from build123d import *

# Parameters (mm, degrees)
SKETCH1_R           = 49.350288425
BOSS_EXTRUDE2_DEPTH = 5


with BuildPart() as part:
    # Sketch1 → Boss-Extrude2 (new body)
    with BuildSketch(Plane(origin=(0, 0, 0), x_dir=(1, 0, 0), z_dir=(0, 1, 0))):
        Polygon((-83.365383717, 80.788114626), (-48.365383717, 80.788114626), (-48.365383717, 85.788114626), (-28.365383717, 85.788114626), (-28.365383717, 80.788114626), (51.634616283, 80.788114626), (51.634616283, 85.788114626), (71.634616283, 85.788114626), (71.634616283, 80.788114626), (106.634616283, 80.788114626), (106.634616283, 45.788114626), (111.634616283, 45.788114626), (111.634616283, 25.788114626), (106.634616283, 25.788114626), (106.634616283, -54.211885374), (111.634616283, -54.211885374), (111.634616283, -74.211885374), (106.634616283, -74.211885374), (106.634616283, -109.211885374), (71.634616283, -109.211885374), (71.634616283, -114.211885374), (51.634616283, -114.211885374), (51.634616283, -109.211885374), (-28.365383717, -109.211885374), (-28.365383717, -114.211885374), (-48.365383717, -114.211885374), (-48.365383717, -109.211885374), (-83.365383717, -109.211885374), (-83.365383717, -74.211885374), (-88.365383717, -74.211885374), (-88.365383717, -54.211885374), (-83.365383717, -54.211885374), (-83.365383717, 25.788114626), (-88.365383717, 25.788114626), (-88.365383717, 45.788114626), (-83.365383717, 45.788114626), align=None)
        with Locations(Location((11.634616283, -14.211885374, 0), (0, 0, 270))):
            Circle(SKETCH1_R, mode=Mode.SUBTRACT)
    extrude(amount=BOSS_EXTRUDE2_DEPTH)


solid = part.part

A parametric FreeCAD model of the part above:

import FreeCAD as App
import Part
import Sketcher

V = App.Vector
Q = App.Units.Quantity

doc = App.newDocument("Part")
body = doc.addObject("PartDesign::Body", "Body")

# Sketch on XZ plane
sketch1 = doc.addObject("Sketcher::SketchObject", "Sketch")
body.addObject(sketch1)
sketch1.AttachmentSupport = (doc.XZ_Plane, [""])
sketch1.MapMode = "FlatFace"
sketch1.addGeometry(Part.LineSegment(V(-48, -81, 0), V(-83, -81, 0)), False)
sketch1.addGeometry(Part.LineSegment(V(-83, -81, 0), V(-83, -46, 0)), False)
sketch1.addGeometry(Part.LineSegment(V(-83, -46, 0), V(-88, -46, 0)), False)
sketch1.addGeometry(Part.LineSegment(V(-88, -46, 0), V(-88, -26, 0)), False)
sketch1.addGeometry(Part.LineSegment(V(-88, -26, 0), V(-83, -26, 0)), False)
sketch1.addGeometry(Part.LineSegment(V(-83, -26, 0), V(-83, 54, 0)), False)
sketch1.addGeometry(Part.LineSegment(V(-83, 54, 0), V(-88, 54, 0)), False)
sketch1.addGeometry(Part.LineSegment(V(-88, 54, 0), V(-88, 74, 0)), False)
sketch1.addGeometry(Part.LineSegment(V(-88, 74, 0), V(-83, 74, 0)), False)
sketch1.addGeometry(Part.LineSegment(V(-83, 74, 0), V(-83, 109, 0)), False)
sketch1.addGeometry(Part.LineSegment(V(-83, 109, 0), V(-48, 109, 0)), False)
sketch1.addGeometry(Part.LineSegment(V(-48, 109, 0), V(-48, 114, 0)), False)
sketch1.addGeometry(Part.LineSegment(V(-48, 114, 0), V(-28, 114, 0)), False)
sketch1.addGeometry(Part.LineSegment(V(-28, 114, 0), V(-28, 109, 0)), False)
sketch1.addGeometry(Part.LineSegment(V(-28, 109, 0), V(52, 109, 0)), False)
sketch1.addGeometry(Part.LineSegment(V(52, 109, 0), V(52, 114, 0)), False)
sketch1.addGeometry(Part.LineSegment(V(52, 114, 0), V(72, 114, 0)), False)
sketch1.addGeometry(Part.LineSegment(V(72, 114, 0), V(72, 109, 0)), False)
sketch1.addGeometry(Part.LineSegment(V(72, 109, 0), V(107, 109, 0)), False)
sketch1.addGeometry(Part.LineSegment(V(107, 109, 0), V(107, 74, 0)), False)
sketch1.addGeometry(Part.LineSegment(V(107, 74, 0), V(112, 74, 0)), False)
sketch1.addGeometry(Part.LineSegment(V(112, 74, 0), V(112, 54, 0)), False)
sketch1.addGeometry(Part.LineSegment(V(112, 54, 0), V(107, 54, 0)), False)
sketch1.addGeometry(Part.LineSegment(V(107, 54, 0), V(107, -26, 0)), False)
sketch1.addGeometry(Part.LineSegment(V(107, -26, 0), V(112, -26, 0)), False)
sketch1.addGeometry(Part.LineSegment(V(112, -26, 0), V(112, -46, 0)), False)
sketch1.addGeometry(Part.LineSegment(V(112, -46, 0), V(107, -46, 0)), False)
sketch1.addGeometry(Part.LineSegment(V(107, -46, 0), V(107, -81, 0)), False)
sketch1.addGeometry(Part.LineSegment(V(107, -81, 0), V(72, -81, 0)), False)
sketch1.addGeometry(Part.LineSegment(V(72, -81, 0), V(72, -86, 0)), False)
sketch1.addGeometry(Part.LineSegment(V(72, -86, 0), V(52, -86, 0)), False)
sketch1.addGeometry(Part.LineSegment(V(52, -86, 0), V(52, -81, 0)), False)
sketch1.addGeometry(Part.LineSegment(V(52, -81, 0), V(-28, -81, 0)), False)
sketch1.addGeometry(Part.LineSegment(V(-28, -81, 0), V(-28, -86, 0)), False)
sketch1.addGeometry(Part.LineSegment(V(-28, -86, 0), V(-48, -86, 0)), False)
sketch1.addGeometry(Part.LineSegment(V(-48, -86, 0), V(-48, -81, 0)), False)
sketch1.addGeometry(Part.Circle(V(12, 14, 0), V(0, 0, 1), 49), False)
sketch1.addConstraint(Sketcher.Constraint("Coincident", 0, 2, 1, 1))
sketch1.addConstraint(Sketcher.Constraint("Coincident", 1, 2, 2, 1))
sketch1.addConstraint(Sketcher.Constraint("Coincident", 2, 2, 3, 1))
sketch1.addConstraint(Sketcher.Constraint("Coincident", 3, 2, 4, 1))
sketch1.addConstraint(Sketcher.Constraint("Coincident", 4, 2, 5, 1))
sketch1.addConstraint(Sketcher.Constraint("Coincident", 5, 2, 6, 1))
sketch1.addConstraint(Sketcher.Constraint("Coincident", 6, 2, 7, 1))
sketch1.addConstraint(Sketcher.Constraint("Coincident", 7, 2, 8, 1))
sketch1.addConstraint(Sketcher.Constraint("Coincident", 8, 2, 9, 1))
sketch1.addConstraint(Sketcher.Constraint("Coincident", 9, 2, 10, 1))
sketch1.addConstraint(Sketcher.Constraint("Coincident", 10, 2, 11, 1))
sketch1.addConstraint(Sketcher.Constraint("Coincident", 11, 2, 12, 1))
sketch1.addConstraint(Sketcher.Constraint("Coincident", 12, 2, 13, 1))
sketch1.addConstraint(Sketcher.Constraint("Coincident", 13, 2, 14, 1))
sketch1.addConstraint(Sketcher.Constraint("Coincident", 14, 2, 15, 1))
sketch1.addConstraint(Sketcher.Constraint("Coincident", 15, 2, 16, 1))
sketch1.addConstraint(Sketcher.Constraint("Coincident", 16, 2, 17, 1))
sketch1.addConstraint(Sketcher.Constraint("Coincident", 17, 2, 18, 1))
sketch1.addConstraint(Sketcher.Constraint("Coincident", 18, 2, 19, 1))
sketch1.addConstraint(Sketcher.Constraint("Coincident", 19, 2, 20, 1))
sketch1.addConstraint(Sketcher.Constraint("Coincident", 20, 2, 21, 1))
sketch1.addConstraint(Sketcher.Constraint("Coincident", 21, 2, 22, 1))
sketch1.addConstraint(Sketcher.Constraint("Coincident", 22, 2, 23, 1))
sketch1.addConstraint(Sketcher.Constraint("Coincident", 23, 2, 24, 1))
sketch1.addConstraint(Sketcher.Constraint("Coincident", 24, 2, 25, 1))
sketch1.addConstraint(Sketcher.Constraint("Coincident", 25, 2, 26, 1))
sketch1.addConstraint(Sketcher.Constraint("Coincident", 26, 2, 27, 1))
sketch1.addConstraint(Sketcher.Constraint("Coincident", 27, 2, 28, 1))
sketch1.addConstraint(Sketcher.Constraint("Coincident", 28, 2, 29, 1))
sketch1.addConstraint(Sketcher.Constraint("Coincident", 29, 2, 30, 1))
sketch1.addConstraint(Sketcher.Constraint("Coincident", 30, 2, 31, 1))
sketch1.addConstraint(Sketcher.Constraint("Coincident", 31, 2, 32, 1))
sketch1.addConstraint(Sketcher.Constraint("Coincident", 32, 2, 33, 1))
sketch1.addConstraint(Sketcher.Constraint("Coincident", 33, 2, 34, 1))
sketch1.addConstraint(Sketcher.Constraint("Coincident", 34, 2, 35, 1))
sketch1.addConstraint(Sketcher.Constraint("Coincident", 35, 2, 0, 1))
sketch1.addConstraint(Sketcher.Constraint("Horizontal", 0))
sketch1.addConstraint(Sketcher.Constraint("Vertical", 1))
sketch1.addConstraint(Sketcher.Constraint("Horizontal", 2))
sketch1.addConstraint(Sketcher.Constraint("Vertical", 3))
sketch1.addConstraint(Sketcher.Constraint("Horizontal", 4))
sketch1.addConstraint(Sketcher.Constraint("Vertical", 5))
sketch1.addConstraint(Sketcher.Constraint("Horizontal", 6))
sketch1.addConstraint(Sketcher.Constraint("Vertical", 7))
sketch1.addConstraint(Sketcher.Constraint("Horizontal", 8))
sketch1.addConstraint(Sketcher.Constraint("Vertical", 9))
sketch1.addConstraint(Sketcher.Constraint("Horizontal", 10))
sketch1.addConstraint(Sketcher.Constraint("Vertical", 11))
sketch1.addConstraint(Sketcher.Constraint("Horizontal", 12))
sketch1.addConstraint(Sketcher.Constraint("Vertical", 13))
sketch1.addConstraint(Sketcher.Constraint("Horizontal", 14))
sketch1.addConstraint(Sketcher.Constraint("Vertical", 15))
sketch1.addConstraint(Sketcher.Constraint("Horizontal", 16))
sketch1.addConstraint(Sketcher.Constraint("Vertical", 17))
sketch1.addConstraint(Sketcher.Constraint("Horizontal", 18))
sketch1.addConstraint(Sketcher.Constraint("Vertical", 19))
sketch1.addConstraint(Sketcher.Constraint("Horizontal", 20))
sketch1.addConstraint(Sketcher.Constraint("Vertical", 21))
sketch1.addConstraint(Sketcher.Constraint("Horizontal", 22))
sketch1.addConstraint(Sketcher.Constraint("Vertical", 23))
sketch1.addConstraint(Sketcher.Constraint("Horizontal", 24))
sketch1.addConstraint(Sketcher.Constraint("Vertical", 25))
sketch1.addConstraint(Sketcher.Constraint("Horizontal", 26))
sketch1.addConstraint(Sketcher.Constraint("Vertical", 27))
sketch1.addConstraint(Sketcher.Constraint("Horizontal", 28))
sketch1.addConstraint(Sketcher.Constraint("Vertical", 29))
sketch1.addConstraint(Sketcher.Constraint("Horizontal", 30))
sketch1.addConstraint(Sketcher.Constraint("Vertical", 31))
sketch1.addConstraint(Sketcher.Constraint("Horizontal", 32))
sketch1.addConstraint(Sketcher.Constraint("Vertical", 33))
sketch1.addConstraint(Sketcher.Constraint("Horizontal", 34))
sketch1.addConstraint(Sketcher.Constraint("Vertical", 35))
sketch1.addConstraint(Sketcher.Constraint("Horizontal", 10, 2, 13, 2))
sketch1.addConstraint(Sketcher.Constraint("Horizontal", 12, 2, 15, 2))
sketch1.addConstraint(Sketcher.Constraint("Horizontal", 14, 2, 17, 2))
sketch1.addConstraint(Sketcher.Constraint("Horizontal", 8, 2, 19, 2))
sketch1.addConstraint(Sketcher.Constraint("Horizontal", 6, 2, 21, 2))
sketch1.addConstraint(Sketcher.Constraint("Horizontal", 4, 2, 23, 2))
sketch1.addConstraint(Sketcher.Constraint("Horizontal", 2, 2, 25, 2))
sketch1.addConstraint(Sketcher.Constraint("Horizontal", 0, 2, 27, 2))
sketch1.addConstraint(Sketcher.Constraint("Horizontal", 28, 2, 31, 2))
sketch1.addConstraint(Sketcher.Constraint("Horizontal", 30, 2, 33, 2))
sketch1.addConstraint(Sketcher.Constraint("Vertical", 1, 2, 4, 2))
sketch1.addConstraint(Sketcher.Constraint("Vertical", 3, 2, 6, 2))
sketch1.addConstraint(Sketcher.Constraint("Vertical", 5, 2, 8, 2))
sketch1.addConstraint(Sketcher.Constraint("Vertical", 19, 2, 22, 2))
sketch1.addConstraint(Sketcher.Constraint("Vertical", 21, 2, 24, 2))
sketch1.addConstraint(Sketcher.Constraint("Vertical", 23, 2, 26, 2))
sketch1.addConstraint(Sketcher.Constraint("Vertical", 17, 2, 28, 2))
sketch1.addConstraint(Sketcher.Constraint("Vertical", 15, 2, 30, 2))
sketch1.addConstraint(Sketcher.Constraint("Vertical", 13, 2, 32, 2))
sketch1.addConstraint(Sketcher.Constraint("Vertical", 11, 2, 34, 2))
sketch1.addConstraint(Sketcher.Constraint("Equal", 12, 16))
sketch1.addConstraint(Sketcher.Constraint("Equal", 10, 18))
sketch1.addConstraint(Sketcher.Constraint("Equal", 8, 20))
sketch1.addConstraint(Sketcher.Constraint("Equal", 28, 1))
sketch1.addConstraint(Sketcher.Constraint("Equal", 34, 3))
sketch1.addConstraint(Sketcher.Constraint("Equal", 32, 5))
sketch1.addConstraint(Sketcher.Constraint("Equal", 3, 7))
sketch1.addConstraint(Sketcher.Constraint("Equal", 1, 9))
sketch1.addConstraint(Sketcher.Constraint("Equal", 26, 11))
sketch1.addConstraint(Sketcher.Constraint("Equal", 17, 29))
sketch1.addConstraint(Sketcher.Constraint("DistanceX", 0, 2, 0, 1, Q("35 mm")))
sketch1.addConstraint(Sketcher.Constraint("DistanceX", 2, 2, 2, 1, Q("5 mm")))
sketch1.addConstraint(Sketcher.Constraint("DistanceX", 12, 1, 12, 2, Q("20 mm")))
sketch1.addConstraint(Sketcher.Constraint("DistanceX", 14, 1, 14, 2, Q("80 mm")))
sketch1.addConstraint(Sketcher.Constraint("DistanceX", 0, 2, 36, 3, Q("95 mm")))
sketch1.addConstraint(Sketcher.Constraint("DistanceY", 0, 2, 36, 3, Q("95 mm")))
sketch1.addConstraint(Sketcher.Constraint("Diameter", 36, Q("98.700577 mm")))
sketch1.addConstraint(Sketcher.Constraint("DistanceX", -1, 1, 36, 3, Q("11.634616 mm")))
sketch1.addConstraint(Sketcher.Constraint("DistanceY", -1, 1, 36, 3, Q("14.211885 mm")))
pad1 = doc.addObject("PartDesign::Pad", "Pad")
body.addObject(pad1)
pad1.Profile = sketch1
pad1.Length = 5
pad1.Reversed = True

doc.recompute()
